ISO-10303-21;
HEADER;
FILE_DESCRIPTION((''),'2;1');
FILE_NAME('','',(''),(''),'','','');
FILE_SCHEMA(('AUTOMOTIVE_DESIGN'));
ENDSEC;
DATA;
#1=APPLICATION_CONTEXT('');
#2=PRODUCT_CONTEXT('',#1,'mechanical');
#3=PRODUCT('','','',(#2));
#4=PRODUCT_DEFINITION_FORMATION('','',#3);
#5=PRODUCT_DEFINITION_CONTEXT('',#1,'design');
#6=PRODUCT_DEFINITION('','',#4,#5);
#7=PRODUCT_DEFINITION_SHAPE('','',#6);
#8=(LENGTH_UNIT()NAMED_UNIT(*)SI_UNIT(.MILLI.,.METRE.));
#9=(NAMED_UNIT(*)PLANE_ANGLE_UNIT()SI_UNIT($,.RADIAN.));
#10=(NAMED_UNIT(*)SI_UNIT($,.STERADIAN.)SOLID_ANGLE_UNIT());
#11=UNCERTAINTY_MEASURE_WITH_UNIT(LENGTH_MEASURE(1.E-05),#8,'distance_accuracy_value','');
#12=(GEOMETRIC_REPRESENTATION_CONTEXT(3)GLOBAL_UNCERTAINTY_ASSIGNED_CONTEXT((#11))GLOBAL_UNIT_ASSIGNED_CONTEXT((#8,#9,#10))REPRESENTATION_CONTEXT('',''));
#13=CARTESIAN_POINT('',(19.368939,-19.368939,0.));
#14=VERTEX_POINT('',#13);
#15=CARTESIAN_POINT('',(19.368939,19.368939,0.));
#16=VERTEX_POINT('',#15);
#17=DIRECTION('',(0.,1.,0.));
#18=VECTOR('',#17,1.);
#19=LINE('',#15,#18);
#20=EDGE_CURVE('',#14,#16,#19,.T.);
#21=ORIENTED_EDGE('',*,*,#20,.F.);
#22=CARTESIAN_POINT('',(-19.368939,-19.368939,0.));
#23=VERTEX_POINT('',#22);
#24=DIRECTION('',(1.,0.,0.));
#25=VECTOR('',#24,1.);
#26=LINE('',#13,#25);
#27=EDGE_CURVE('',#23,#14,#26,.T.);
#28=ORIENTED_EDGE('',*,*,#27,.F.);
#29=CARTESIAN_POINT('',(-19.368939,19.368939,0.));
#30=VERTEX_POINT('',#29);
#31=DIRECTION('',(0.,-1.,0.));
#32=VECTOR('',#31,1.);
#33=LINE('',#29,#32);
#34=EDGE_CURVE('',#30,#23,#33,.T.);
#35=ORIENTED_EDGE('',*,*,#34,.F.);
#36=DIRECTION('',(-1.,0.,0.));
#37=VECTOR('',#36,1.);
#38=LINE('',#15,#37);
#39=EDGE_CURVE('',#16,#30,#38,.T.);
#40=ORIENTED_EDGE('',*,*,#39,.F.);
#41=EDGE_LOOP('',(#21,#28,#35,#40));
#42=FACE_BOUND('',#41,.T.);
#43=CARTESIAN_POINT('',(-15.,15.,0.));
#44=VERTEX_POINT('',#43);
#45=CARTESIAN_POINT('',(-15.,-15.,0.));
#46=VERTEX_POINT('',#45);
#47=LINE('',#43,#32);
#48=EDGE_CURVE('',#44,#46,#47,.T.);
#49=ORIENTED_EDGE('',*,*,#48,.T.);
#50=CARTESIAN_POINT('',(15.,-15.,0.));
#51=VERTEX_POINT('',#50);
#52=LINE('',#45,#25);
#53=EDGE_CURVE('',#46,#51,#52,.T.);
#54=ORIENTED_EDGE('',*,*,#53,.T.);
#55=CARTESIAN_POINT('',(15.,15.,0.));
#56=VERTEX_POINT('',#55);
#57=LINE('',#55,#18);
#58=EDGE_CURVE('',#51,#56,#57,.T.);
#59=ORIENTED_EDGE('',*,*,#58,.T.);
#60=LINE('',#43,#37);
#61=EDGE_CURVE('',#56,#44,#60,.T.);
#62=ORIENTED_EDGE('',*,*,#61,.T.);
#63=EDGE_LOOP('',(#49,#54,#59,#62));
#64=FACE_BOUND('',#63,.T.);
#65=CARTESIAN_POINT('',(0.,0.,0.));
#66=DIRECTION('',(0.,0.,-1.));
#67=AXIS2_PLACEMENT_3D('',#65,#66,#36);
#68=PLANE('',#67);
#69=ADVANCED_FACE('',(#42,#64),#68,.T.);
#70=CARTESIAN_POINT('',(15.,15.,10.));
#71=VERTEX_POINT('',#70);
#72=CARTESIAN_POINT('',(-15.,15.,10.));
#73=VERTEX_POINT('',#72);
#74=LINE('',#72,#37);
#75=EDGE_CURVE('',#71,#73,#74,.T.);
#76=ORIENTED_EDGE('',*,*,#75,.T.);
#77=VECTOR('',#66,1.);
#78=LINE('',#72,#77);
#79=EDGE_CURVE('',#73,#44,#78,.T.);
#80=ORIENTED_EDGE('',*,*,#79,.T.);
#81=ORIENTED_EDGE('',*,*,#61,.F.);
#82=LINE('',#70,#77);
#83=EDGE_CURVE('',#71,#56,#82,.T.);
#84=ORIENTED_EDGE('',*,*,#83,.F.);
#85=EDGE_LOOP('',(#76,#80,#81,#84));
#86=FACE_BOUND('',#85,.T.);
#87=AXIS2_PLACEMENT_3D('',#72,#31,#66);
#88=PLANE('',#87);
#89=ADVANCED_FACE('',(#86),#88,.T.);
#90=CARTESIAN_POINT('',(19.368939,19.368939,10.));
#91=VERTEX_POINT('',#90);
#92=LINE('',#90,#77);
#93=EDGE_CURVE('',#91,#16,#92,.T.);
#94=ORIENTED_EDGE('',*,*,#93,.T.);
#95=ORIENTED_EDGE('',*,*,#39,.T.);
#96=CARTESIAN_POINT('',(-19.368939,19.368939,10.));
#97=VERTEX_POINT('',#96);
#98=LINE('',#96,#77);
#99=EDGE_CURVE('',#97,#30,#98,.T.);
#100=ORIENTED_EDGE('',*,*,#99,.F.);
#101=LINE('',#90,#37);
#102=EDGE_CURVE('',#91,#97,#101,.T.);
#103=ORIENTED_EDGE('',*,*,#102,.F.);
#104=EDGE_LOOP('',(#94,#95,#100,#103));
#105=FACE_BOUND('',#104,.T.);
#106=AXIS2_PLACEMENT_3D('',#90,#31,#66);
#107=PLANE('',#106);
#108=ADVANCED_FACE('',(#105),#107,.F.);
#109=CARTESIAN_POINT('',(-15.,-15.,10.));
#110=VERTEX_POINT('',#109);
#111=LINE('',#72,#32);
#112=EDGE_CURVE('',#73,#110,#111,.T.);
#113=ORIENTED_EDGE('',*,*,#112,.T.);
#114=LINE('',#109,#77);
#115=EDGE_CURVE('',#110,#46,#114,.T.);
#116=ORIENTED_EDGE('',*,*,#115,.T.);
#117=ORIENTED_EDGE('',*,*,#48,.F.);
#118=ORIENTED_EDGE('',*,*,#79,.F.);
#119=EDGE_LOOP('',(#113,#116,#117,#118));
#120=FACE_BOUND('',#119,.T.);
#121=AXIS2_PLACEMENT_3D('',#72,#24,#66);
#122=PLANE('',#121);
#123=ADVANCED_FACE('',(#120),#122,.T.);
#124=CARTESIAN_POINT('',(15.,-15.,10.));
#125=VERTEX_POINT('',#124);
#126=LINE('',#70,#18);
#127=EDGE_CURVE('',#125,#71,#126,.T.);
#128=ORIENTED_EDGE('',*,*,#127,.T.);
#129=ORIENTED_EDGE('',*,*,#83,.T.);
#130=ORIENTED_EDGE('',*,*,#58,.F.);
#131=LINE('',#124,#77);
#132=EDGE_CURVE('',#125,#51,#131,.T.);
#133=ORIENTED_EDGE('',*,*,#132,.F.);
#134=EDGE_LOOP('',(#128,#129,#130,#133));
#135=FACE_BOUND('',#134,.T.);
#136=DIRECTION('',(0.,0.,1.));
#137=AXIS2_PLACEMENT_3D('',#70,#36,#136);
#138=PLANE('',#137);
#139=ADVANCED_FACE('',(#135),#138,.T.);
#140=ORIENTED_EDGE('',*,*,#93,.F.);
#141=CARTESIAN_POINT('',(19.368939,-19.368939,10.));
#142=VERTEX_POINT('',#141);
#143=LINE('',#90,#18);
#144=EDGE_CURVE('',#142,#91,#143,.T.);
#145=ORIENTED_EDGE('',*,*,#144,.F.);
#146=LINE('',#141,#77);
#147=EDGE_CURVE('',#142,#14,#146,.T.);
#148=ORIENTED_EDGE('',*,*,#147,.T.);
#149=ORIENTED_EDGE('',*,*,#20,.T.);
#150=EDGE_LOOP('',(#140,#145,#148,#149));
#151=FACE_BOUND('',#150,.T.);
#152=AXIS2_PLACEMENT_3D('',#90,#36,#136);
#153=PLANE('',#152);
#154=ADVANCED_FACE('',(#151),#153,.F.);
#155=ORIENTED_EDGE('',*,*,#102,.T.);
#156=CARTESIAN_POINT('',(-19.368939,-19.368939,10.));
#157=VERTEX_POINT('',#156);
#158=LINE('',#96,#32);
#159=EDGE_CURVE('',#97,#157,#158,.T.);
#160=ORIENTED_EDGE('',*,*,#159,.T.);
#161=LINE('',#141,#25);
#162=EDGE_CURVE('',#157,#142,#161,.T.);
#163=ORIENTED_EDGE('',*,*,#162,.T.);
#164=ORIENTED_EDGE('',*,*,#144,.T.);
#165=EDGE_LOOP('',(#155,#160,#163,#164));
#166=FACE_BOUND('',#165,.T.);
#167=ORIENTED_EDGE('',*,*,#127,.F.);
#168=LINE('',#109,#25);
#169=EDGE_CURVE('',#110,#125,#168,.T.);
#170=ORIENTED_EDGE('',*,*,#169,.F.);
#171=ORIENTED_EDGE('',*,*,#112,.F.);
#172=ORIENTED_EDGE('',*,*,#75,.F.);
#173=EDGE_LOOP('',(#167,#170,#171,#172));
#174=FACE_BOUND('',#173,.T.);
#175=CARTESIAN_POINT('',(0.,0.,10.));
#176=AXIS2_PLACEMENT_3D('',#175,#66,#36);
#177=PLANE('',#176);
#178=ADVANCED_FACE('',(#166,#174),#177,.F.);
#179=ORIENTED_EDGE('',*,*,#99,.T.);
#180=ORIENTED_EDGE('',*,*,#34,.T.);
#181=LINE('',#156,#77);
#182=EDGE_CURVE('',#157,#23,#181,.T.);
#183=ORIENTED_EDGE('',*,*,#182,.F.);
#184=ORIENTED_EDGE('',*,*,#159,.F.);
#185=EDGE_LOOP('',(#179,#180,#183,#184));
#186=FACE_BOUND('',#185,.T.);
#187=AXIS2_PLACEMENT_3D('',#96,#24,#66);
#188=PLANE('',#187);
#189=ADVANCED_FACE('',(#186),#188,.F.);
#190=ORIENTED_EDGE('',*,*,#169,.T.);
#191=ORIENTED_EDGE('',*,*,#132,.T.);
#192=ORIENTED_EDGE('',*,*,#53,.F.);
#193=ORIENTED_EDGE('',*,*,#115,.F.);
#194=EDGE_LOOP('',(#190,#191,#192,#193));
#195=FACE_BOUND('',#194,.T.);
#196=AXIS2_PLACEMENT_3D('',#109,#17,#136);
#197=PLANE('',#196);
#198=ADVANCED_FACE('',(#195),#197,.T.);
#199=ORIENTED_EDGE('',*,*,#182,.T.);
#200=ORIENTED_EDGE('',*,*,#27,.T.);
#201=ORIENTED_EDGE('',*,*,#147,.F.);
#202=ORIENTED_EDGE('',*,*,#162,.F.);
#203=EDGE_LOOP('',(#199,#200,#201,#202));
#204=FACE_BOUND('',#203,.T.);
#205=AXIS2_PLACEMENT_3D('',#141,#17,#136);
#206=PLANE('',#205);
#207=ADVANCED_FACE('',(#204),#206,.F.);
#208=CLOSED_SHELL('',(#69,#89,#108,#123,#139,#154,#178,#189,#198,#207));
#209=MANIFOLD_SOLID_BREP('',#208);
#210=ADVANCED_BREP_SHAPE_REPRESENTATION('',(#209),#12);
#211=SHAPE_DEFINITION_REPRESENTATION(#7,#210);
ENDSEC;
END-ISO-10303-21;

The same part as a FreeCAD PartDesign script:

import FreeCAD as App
import Part
import Sketcher


def add_polygon(sketch, points):
    """Adds a closed chain of lines whose ends are joined by coincident constraints."""
    first, n = sketch.GeometryCount, len(points)
    for a, b in zip(points, points[1:] + points[:1]):
        sketch.addGeometry(Part.LineSegment(App.Vector(*a, 0), App.Vector(*b, 0)), False)
    for i in range(n):
        sketch.addConstraint(Sketcher.Constraint("Coincident", first + i, 2, first + (i + 1) % n, 1))

doc = App.newDocument("Part")
params = doc.addObject("Spreadsheet::Sheet", "Params")
for row, (alias, value) in enumerate([
    ("sketch1_width", "30 mm"),
    ("pad1_length", "10 mm"),
], start=1):
    params.set(f"A{row}", alias)
    params.set(f"B{row}", "=" + value)
    params.setAlias(f"B{row}", alias)

body = doc.addObject("PartDesign::Body", "Body")

sketch1 = doc.addObject("Sketcher::SketchObject", "Sketch")
body.addObject(sketch1)
sketch1.AttachmentSupport = (doc.XY_Plane, [""])
sketch1.MapMode = "FlatFace"
add_polygon(sketch1, [(-19.368939, 19.368939), (-19.368939, -19.368939), (19.368939, -19.368939), (19.368939, 19.368939)])
add_polygon(sketch1, [(15, -15), (-15, -15), (-15, 15), (15, 15)])
sketch1.addConstraint([
    Sketcher.Constraint("Vertical", 0),
    Sketcher.Constraint("Horizontal", 1),
    Sketcher.Constraint("Vertical", 2),
    Sketcher.Constraint("Horizontal", 3),
    Sketcher.Constraint("Horizontal", 4),
    Sketcher.Constraint("Vertical", 5),
    Sketcher.Constraint("Horizontal", 6),
    Sketcher.Constraint("Vertical", 7),
    Sketcher.Constraint("Symmetric", 0, 2, 2, 2, -1, 1),
    Sketcher.Constraint("Symmetric", 4, 2, 6, 2, -1, 1),
    Sketcher.Constraint("Equal", 3, 0),
    Sketcher.Constraint("Equal", 6, 5),
    Sketcher.Constraint("DistanceX", 4, 2, 4, 1, 30.0),
    Sketcher.Constraint("DistanceX", 1, 1, 1, 2, 38.737878),
])
sketch1.setExpression("Constraints[20]", "Params.sketch1_width")
pad1 = doc.addObject("PartDesign::Pad", "Pad")
body.addObject(pad1)
pad1.Profile = sketch1
pad1.setExpression("Length", "Params.pad1_length")

doc.recompute()
